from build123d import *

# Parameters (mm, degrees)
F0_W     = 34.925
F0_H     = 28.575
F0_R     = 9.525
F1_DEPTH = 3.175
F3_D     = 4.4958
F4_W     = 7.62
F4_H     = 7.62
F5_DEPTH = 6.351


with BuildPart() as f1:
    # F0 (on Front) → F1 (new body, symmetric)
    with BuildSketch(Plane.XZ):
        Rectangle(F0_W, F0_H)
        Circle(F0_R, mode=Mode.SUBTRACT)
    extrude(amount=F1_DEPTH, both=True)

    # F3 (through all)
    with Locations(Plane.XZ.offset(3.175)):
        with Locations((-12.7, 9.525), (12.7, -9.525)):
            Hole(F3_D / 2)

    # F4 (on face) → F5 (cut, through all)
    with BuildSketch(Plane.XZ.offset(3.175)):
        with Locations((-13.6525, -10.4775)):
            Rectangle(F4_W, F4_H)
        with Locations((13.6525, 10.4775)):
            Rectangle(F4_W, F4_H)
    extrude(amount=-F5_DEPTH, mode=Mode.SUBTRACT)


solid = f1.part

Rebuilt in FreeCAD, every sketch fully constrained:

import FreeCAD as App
import Part
import Sketcher
Q = App.Units.Quantity

doc = App.newDocument("Part")
params = doc.addObject("Spreadsheet::Sheet", "Params")
for row, (alias, value) in enumerate([
    ("sketch1_diameter", "0.75 in"),
    ("sketch1_width", "1.375 in"),
    ("sketch1_height", "1.125 in"),
    ("pad1_length", "0.25 in"),
    ("sketch2_diameter", "0.177 in"),
    ("hole_diameter", "0.177 in"),
    ("sketch3_width", "0.3 in"),
], start=1):
    params.set(f"A{row}", alias)
    params.set(f"B{row}", "=" + value)
    params.setAlias(f"B{row}", alias)

body = doc.addObject("PartDesign::Body", "Body")

# Sketch on XZ plane
sketch1 = doc.addObject("Sketcher::SketchObject", "Sketch")
body.addObject(sketch1)
sketch1.AttachmentSupport = (doc.XZ_Plane, [""])
sketch1.MapMode = "FlatFace"
sketch1.addGeometry(Part.LineSegment(App.Vector(-17.4625, 14.2875, 0), App.Vector(-17.4625, -14.2875, 0)), False)
sketch1.addGeometry(Part.LineSegment(App.Vector(-17.4625, -14.2875, 0), App.Vector(17.4625, -14.2875, 0)), False)
sketch1.addGeometry(Part.LineSegment(App.Vector(17.4625, -14.2875, 0), App.Vector(17.4625, 14.2875, 0)), False)
sketch1.addGeometry(Part.LineSegment(App.Vector(17.4625, 14.2875, 0), App.Vector(-17.4625, 14.2875, 0)), False)
sketch1.addGeometry(Part.Circle(App.Vector(0, 0, 0), App.Vector(0, 0, 1), 9.525), False)
sketch1.addConstraint(Sketcher.Constraint("Coincident", 0, 2, 1, 1))
sketch1.addConstraint(Sketcher.Constraint("Coincident", 1, 2, 2, 1))
sketch1.addConstraint(Sketcher.Constraint("Coincident", 2, 2, 3, 1))
sketch1.addConstraint(Sketcher.Constraint("Coincident", 3, 2, 0, 1))
sketch1.addConstraint(Sketcher.Constraint("Vertical", 0))
sketch1.addConstraint(Sketcher.Constraint("Horizontal", 1))
sketch1.addConstraint(Sketcher.Constraint("Vertical", 2))
sketch1.addConstraint(Sketcher.Constraint("Horizontal", 3))
sketch1.addConstraint(Sketcher.Constraint("Coincident", 4, 3, -1, 1))
sketch1.addConstraint(Sketcher.Constraint("Symmetric", 0, 2, 2, 2, -1, 1))
sketch1.addConstraint(Sketcher.Constraint("Diameter", 4, Q("0.75 in")))
sketch1.addConstraint(Sketcher.Constraint("DistanceX", 1, 1, 1, 2, Q("1.375 in")))
sketch1.addConstraint(Sketcher.Constraint("DistanceY", 0, 2, 0, 1, Q("1.125 in")))
sketch1.setExpression("Constraints[10]", "Params.sketch1_diameter")
sketch1.setExpression("Constraints[11]", "Params.sketch1_width")
sketch1.setExpression("Constraints[12]", "Params.sketch1_height")
pad1 = doc.addObject("PartDesign::Pad", "Pad")
body.addObject(pad1)
pad1.Profile = sketch1
pad1.setExpression("Length", "Params.pad1_length")
pad1.Midplane = True

# Sketch on XZ plane
sketch2 = doc.addObject("Sketcher::SketchObject", "Sketch001")
body.addObject(sketch2)
sketch2.AttachmentSupport = (doc.XZ_Plane, [""])
sketch2.MapMode = "FlatFace"
sketch2.AttachmentOffset = App.Placement(App.Vector(0, 0, 0.125 * 25.4), App.Rotation())
sketch2.addGeometry(Part.Circle(App.Vector(-12.7, 9.525, 0), App.Vector(0, 0, 1), 2.2479), False)
sketch2.addGeometry(Part.Circle(App.Vector(12.7, -9.525, 0), App.Vector(0, 0, 1), 2.2479), False)
sketch2.addConstraint(Sketcher.Constraint("Equal", 0, 1))
sketch2.addConstraint(Sketcher.Constraint("Symmetric", 0, 3, 1, 3, -1, 1))
sketch2.addConstraint(Sketcher.Constraint("Diameter", 0, Q("0.177 in")))
sketch2.addConstraint(Sketcher.Constraint("DistanceX", 0, 3, 1, 3, Q("1 in")))
sketch2.addConstraint(Sketcher.Constraint("DistanceY", 1, 3, 0, 3, Q("0.75 in")))
sketch2.setExpression("Constraints[2]", "Params.sketch2_diameter")
doc.recompute()
hole = doc.addObject("PartDesign::Hole", "Hole")
body.addObject(hole)
hole.Profile = sketch2
hole.ThreadType = "None"
hole.setExpression("Diameter", "Params.hole_diameter")
hole.DepthType = "ThroughAll"

# Sketch on XZ plane
sketch3 = doc.addObject("Sketcher::SketchObject", "Sketch002")
body.addObject(sketch3)
sketch3.AttachmentSupport = (doc.XZ_Plane, [""])
sketch3.MapMode = "FlatFace"
sketch3.AttachmentOffset = App.Placement(App.Vector(0, 0, 0.125 * 25.4), App.Rotation())
sketch3.addGeometry(Part.LineSegment(App.Vector(-17.4625, -6.6675, 0), App.Vector(-17.4625, -14.2875, 0)), False)
sketch3.addGeometry(Part.LineSegment(App.Vector(-17.4625, -14.2875, 0), App.Vector(-9.8425, -14.2875, 0)), False)
sketch3.addGeometry(Part.LineSegment(App.Vector(-9.8425, -14.2875, 0), App.Vector(-9.8425, -6.6675, 0)), False)
sketch3.addGeometry(Part.LineSegment(App.Vector(-9.8425, -6.6675, 0), App.Vector(-17.4625, -6.6675, 0)), False)
sketch3.addGeometry(Part.LineSegment(App.Vector(9.8425, 14.2875, 0), App.Vector(9.8425, 6.6675, 0)), False)
sketch3.addGeometry(Part.LineSegment(App.Vector(9.8425, 6.6675, 0), App.Vector(17.4625, 6.6675, 0)), False)
sketch3.addGeometry(Part.LineSegment(App.Vector(17.4625, 6.6675, 0), App.Vector(17.4625, 14.2875, 0)), False)
sketch3.addGeometry(Part.LineSegment(App.Vector(17.4625, 14.2875, 0), App.Vector(9.8425, 14.2875, 0)), False)
sketch3.addConstraint(Sketcher.Constraint("Coincident", 0, 2, 1, 1))
sketch3.addConstraint(Sketcher.Constraint("Coincident", 1, 2, 2, 1))
sketch3.addConstraint(Sketcher.Constraint("Coincident", 2, 2, 3, 1))
sketch3.addConstraint(Sketcher.Constraint("Coincident", 3, 2, 0, 1))
sketch3.addConstraint(Sketcher.Constraint("Coincident", 4, 2, 5, 1))
sketch3.addConstraint(Sketcher.Constraint("Coincident", 5, 2, 6, 1))
sketch3.addConstraint(Sketcher.Constraint("Coincident", 6, 2, 7, 1))
sketch3.addConstraint(Sketcher.Constraint("Coincident", 7, 2, 4, 1))
sketch3.addConstraint(Sketcher.Constraint("Vertical", 0))
sketch3.addConstraint(Sketcher.Constraint("Horizontal", 1))
sketch3.addConstraint(Sketcher.Constraint("Vertical", 2))
sketch3.addConstraint(Sketcher.Constraint("Horizontal", 3))
sketch3.addConstraint(Sketcher.Constraint("Vertical", 4))
sketch3.addConstraint(Sketcher.Constraint("Horizontal", 5))
sketch3.addConstraint(Sketcher.Constraint("Vertical", 6))
sketch3.addConstraint(Sketcher.Constraint("Horizontal", 7))
sketch3.addConstraint(Sketcher.Constraint("Symmetric", 2, 2, 4, 2, -1, 1))
sketch3.addConstraint(Sketcher.Constraint("Symmetric", 0, 2, 6, 2, -1, 1))
sketch3.addConstraint(Sketcher.Constraint("Equal", 7, 0))
sketch3.addConstraint(Sketcher.Constraint("DistanceX", 1, 1, 1, 2, Q("0.3 in")))
sketch3.addConstraint(Sketcher.Constraint("DistanceX", 0, 2, -1, 1, Q("0.6875 in")))
sketch3.addConstraint(Sketcher.Constraint("DistanceY", 0, 2, -1, 1, Q("0.5625 in")))
sketch3.setExpression("Constraints[19]", "Params.sketch3_width")
pocket1 = doc.addObject("PartDesign::Pocket", "Pocket")
body.addObject(pocket1)
pocket1.Profile = sketch3
pocket1.Type = "ThroughAll"

doc.recompute()
